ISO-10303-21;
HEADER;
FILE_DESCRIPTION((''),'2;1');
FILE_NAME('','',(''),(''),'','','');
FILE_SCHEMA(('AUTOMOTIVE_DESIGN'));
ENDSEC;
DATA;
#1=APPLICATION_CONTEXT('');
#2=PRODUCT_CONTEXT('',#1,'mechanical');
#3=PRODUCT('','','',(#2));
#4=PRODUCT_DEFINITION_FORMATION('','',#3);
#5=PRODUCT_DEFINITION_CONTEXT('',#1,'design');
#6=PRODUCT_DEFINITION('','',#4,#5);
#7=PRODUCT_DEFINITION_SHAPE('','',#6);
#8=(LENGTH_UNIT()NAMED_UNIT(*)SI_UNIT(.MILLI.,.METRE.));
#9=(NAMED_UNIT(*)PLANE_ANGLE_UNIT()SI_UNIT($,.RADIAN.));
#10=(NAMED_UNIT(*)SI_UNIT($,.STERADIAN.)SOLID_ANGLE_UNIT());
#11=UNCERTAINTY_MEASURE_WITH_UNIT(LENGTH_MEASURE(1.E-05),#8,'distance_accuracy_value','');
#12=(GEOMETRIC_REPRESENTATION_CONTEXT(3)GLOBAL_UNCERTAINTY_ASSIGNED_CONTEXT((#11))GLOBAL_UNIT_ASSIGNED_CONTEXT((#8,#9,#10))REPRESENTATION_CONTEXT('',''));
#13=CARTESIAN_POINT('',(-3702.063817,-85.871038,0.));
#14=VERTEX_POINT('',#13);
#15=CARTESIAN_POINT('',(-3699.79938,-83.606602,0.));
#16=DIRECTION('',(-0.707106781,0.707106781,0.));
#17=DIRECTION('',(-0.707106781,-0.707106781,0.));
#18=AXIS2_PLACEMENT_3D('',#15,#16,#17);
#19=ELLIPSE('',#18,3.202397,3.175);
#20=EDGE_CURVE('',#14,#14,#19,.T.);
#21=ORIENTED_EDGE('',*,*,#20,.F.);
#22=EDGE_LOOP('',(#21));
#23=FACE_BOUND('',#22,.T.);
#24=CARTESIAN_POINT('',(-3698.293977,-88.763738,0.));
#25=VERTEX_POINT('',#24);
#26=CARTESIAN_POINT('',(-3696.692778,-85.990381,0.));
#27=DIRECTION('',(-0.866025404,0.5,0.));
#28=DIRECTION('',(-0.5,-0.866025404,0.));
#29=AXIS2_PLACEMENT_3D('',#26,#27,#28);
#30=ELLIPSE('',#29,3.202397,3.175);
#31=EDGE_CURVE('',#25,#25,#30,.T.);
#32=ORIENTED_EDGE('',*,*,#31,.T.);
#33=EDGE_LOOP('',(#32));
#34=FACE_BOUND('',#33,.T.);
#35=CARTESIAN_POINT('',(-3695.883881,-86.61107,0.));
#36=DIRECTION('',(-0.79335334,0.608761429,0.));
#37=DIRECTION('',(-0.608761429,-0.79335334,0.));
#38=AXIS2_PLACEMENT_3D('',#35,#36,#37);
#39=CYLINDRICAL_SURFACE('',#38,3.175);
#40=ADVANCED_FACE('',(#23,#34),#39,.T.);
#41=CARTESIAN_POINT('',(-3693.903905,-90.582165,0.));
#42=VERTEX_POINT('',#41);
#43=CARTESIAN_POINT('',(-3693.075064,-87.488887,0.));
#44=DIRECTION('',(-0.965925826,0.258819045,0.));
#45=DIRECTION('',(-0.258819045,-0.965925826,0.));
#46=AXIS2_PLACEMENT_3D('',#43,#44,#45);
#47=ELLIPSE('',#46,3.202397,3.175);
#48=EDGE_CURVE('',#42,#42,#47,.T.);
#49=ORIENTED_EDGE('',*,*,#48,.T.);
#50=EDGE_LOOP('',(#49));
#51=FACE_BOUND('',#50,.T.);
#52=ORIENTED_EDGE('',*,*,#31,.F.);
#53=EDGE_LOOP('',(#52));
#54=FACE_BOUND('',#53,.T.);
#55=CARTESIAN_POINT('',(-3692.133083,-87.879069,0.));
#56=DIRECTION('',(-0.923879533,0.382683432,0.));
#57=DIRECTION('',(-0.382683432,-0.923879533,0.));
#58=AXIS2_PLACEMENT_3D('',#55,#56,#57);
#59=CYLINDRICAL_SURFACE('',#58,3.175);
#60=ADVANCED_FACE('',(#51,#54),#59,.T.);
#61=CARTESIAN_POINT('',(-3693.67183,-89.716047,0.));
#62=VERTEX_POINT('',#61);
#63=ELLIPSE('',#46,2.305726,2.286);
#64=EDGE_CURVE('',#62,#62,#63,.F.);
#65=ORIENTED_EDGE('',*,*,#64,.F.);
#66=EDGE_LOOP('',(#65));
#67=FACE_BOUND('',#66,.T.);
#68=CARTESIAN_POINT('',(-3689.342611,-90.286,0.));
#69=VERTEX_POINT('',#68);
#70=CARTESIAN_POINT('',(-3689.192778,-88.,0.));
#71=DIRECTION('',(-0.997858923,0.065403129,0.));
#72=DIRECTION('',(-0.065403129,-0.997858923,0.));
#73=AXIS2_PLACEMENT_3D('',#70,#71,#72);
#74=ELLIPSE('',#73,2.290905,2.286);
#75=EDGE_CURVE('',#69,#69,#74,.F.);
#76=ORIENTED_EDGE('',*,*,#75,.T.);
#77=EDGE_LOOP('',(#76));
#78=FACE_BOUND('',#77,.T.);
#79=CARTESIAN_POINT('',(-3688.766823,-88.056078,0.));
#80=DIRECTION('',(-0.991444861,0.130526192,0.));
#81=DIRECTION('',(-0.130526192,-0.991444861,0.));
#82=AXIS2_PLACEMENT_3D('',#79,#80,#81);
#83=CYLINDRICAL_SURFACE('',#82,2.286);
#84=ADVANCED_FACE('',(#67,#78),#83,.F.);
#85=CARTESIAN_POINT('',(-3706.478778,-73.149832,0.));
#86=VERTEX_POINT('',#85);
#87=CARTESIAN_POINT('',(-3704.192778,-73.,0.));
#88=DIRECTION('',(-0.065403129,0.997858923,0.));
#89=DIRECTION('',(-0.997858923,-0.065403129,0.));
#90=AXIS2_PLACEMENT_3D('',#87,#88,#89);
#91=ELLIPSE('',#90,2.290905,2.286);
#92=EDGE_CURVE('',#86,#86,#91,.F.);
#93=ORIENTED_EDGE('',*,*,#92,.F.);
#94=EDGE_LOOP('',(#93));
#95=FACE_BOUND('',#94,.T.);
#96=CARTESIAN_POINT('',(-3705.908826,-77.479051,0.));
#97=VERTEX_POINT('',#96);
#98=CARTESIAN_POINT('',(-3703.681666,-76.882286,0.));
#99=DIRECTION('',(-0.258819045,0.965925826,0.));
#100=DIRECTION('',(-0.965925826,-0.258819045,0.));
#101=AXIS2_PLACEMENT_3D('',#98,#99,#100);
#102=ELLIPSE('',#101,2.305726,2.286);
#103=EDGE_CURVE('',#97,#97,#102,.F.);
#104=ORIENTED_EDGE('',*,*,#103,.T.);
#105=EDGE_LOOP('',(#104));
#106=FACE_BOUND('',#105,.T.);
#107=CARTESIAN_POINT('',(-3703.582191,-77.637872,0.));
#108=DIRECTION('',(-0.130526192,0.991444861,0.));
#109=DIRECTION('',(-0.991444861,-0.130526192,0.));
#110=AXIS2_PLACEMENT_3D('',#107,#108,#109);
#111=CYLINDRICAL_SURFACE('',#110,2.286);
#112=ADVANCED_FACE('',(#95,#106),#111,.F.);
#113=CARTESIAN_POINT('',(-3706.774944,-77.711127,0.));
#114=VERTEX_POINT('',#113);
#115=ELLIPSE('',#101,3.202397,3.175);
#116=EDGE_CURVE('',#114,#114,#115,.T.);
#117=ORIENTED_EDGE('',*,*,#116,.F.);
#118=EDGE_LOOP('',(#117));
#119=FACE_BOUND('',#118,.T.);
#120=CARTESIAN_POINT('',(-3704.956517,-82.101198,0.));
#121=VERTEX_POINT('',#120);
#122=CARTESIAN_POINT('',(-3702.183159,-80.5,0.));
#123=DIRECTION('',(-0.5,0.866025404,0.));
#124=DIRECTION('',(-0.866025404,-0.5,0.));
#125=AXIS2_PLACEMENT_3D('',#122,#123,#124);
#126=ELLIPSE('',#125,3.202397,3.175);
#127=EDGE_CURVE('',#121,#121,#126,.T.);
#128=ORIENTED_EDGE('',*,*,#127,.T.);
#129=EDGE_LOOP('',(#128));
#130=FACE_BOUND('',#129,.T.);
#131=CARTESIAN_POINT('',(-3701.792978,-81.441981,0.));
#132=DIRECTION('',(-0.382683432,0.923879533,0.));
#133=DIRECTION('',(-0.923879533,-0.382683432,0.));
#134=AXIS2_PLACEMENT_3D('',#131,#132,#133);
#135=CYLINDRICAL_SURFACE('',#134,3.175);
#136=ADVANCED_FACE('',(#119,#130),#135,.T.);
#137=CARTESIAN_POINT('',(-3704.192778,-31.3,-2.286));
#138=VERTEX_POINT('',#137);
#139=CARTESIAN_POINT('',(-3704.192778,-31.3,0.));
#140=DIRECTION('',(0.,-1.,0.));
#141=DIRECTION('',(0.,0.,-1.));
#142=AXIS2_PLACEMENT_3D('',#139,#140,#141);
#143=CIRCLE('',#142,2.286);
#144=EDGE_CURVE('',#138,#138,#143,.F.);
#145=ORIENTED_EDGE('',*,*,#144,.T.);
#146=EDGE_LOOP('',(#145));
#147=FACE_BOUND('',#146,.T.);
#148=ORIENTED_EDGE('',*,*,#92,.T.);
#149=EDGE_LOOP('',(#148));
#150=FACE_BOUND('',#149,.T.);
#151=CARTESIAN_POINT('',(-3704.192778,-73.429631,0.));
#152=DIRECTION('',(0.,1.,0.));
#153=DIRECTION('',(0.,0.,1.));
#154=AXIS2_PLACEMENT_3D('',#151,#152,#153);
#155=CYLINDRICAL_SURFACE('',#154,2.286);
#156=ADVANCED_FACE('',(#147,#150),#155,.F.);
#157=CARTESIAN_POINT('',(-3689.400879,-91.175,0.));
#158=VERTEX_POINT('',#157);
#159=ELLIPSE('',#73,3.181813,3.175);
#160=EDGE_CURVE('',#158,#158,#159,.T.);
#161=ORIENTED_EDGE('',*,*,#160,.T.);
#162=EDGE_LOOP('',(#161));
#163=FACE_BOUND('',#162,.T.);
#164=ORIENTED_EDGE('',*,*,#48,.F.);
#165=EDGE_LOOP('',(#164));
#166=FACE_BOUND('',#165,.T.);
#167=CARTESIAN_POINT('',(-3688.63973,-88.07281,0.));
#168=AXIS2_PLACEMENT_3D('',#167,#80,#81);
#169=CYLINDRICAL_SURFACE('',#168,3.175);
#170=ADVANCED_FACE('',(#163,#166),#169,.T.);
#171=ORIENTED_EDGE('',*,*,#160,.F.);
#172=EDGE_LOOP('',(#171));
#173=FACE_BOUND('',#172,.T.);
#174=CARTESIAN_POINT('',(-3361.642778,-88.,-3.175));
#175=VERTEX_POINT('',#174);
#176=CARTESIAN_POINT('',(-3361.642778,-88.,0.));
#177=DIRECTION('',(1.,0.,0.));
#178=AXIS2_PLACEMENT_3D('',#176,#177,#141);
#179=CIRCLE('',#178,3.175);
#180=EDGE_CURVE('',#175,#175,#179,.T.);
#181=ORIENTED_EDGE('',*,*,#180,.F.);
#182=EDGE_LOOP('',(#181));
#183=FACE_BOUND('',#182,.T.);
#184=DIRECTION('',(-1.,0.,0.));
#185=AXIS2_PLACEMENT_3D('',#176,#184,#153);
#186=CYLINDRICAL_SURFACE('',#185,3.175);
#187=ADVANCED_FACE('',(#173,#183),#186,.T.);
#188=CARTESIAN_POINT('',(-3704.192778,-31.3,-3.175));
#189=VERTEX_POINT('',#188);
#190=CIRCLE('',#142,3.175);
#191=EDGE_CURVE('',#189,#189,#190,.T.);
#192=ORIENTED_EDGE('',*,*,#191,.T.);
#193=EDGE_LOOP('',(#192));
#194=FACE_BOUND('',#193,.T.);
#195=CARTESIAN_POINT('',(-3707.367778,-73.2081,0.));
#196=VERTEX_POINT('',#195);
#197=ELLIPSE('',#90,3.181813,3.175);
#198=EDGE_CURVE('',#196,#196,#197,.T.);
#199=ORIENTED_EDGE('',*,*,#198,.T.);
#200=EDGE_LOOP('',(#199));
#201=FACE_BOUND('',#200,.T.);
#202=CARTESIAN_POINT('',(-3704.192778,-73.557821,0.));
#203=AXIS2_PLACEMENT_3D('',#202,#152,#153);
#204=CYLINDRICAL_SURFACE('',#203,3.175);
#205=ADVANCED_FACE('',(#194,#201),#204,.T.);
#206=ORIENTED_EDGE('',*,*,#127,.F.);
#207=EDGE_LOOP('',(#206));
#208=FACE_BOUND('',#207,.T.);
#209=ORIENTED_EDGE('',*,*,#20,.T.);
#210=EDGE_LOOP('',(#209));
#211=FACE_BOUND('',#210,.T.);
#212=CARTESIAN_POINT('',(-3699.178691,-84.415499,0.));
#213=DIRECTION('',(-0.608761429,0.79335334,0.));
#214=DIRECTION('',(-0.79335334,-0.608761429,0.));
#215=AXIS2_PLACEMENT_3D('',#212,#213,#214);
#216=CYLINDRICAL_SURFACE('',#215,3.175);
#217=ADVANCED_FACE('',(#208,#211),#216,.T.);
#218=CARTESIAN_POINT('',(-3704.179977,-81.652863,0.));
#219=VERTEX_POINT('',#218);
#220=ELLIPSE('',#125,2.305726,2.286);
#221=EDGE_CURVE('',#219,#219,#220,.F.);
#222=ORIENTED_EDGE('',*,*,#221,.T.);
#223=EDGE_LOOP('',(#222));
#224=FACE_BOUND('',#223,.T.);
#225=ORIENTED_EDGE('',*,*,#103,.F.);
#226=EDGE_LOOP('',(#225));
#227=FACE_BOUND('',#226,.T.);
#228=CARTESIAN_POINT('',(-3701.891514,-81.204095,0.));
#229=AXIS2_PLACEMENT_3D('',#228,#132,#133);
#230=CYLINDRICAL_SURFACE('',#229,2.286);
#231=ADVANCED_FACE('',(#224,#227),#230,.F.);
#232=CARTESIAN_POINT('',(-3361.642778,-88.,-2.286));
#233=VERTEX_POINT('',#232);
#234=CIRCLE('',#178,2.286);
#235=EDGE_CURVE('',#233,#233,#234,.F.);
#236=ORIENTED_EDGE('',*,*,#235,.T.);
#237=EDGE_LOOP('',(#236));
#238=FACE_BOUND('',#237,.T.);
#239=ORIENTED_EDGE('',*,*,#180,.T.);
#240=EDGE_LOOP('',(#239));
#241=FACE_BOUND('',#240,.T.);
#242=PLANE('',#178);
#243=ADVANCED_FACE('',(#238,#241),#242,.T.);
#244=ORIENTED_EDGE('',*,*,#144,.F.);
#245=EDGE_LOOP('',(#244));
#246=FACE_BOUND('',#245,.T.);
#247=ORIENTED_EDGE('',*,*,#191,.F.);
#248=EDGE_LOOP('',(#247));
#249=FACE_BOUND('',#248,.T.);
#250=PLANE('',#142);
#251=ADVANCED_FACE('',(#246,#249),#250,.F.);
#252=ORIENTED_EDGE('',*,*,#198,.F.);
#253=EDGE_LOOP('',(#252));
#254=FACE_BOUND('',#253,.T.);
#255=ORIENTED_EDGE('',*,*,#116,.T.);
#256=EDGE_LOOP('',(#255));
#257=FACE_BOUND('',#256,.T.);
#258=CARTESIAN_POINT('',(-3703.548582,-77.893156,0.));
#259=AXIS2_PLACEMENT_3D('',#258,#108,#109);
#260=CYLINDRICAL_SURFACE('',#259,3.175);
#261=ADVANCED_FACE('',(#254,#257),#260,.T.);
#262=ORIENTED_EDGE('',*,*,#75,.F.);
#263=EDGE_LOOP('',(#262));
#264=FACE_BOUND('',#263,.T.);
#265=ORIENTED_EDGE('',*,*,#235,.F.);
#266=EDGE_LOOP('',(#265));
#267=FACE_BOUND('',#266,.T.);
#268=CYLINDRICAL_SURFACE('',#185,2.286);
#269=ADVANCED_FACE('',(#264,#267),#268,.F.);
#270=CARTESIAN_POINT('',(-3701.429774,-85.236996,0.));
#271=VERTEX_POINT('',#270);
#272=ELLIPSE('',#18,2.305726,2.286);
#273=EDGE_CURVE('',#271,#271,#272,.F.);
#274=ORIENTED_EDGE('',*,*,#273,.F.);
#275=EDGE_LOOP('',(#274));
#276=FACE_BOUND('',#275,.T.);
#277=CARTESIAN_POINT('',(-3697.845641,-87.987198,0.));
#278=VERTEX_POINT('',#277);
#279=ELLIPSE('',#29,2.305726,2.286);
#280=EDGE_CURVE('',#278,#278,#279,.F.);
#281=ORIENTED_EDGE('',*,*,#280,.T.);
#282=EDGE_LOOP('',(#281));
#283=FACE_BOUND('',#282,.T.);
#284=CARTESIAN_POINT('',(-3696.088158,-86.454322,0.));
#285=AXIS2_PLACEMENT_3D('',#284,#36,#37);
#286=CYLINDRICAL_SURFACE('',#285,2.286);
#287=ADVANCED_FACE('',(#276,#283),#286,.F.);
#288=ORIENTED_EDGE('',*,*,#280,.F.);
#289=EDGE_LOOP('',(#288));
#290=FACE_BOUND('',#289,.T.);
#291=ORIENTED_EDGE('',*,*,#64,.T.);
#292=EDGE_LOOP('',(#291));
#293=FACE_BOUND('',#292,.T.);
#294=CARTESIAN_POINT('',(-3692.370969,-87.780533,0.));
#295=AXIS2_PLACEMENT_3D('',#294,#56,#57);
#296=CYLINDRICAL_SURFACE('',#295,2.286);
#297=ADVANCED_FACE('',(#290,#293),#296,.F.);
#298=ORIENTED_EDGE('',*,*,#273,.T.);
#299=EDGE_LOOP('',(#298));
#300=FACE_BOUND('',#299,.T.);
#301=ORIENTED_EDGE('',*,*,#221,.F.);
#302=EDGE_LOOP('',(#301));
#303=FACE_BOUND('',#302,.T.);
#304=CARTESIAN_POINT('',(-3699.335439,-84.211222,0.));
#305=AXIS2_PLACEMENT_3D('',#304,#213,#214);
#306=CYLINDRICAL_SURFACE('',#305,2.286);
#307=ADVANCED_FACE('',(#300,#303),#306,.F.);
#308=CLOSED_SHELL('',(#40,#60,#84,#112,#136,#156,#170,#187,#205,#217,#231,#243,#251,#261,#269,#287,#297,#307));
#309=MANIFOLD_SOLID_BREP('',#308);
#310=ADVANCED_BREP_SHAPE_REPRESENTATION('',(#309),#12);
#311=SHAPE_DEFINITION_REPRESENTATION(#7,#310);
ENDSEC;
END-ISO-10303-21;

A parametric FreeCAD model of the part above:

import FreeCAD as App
import Part
import Sketcher
from FreeCAD import Vector
Q = App.Units.Quantity

doc = App.newDocument("Part")
body = doc.addObject("PartDesign::Body", "Body")

# Sketch on YZ plane
sketch1 = body.newObject("Sketcher::SketchObject", "Sketch")
sketch1.AttachmentSupport = (doc.getObject("YZ_Plane"), [""])
sketch1.MapMode = "FlatFace"
sketch1.AttachmentOffset = App.Placement(Vector(0, 0, -3361.642778), App.Rotation())
sketch1.addGeometry(Part.Circle(Vector(-88, 0, 0), Vector(0, 0, 1), 3.2), False)
sketch1.addGeometry(Part.Circle(Vector(-88, 0, 0), Vector(0, 0, 1), 2.3), False)
sketch1.addConstraint(Sketcher.Constraint("Coincident", 1, 3, 0, 3))
sketch1.addConstraint(Sketcher.Constraint("PointOnObject", 0, 3, -1))
sketch1.addConstraint(Sketcher.Constraint("Diameter", 0, Q("0.25 in")))
sketch1.addConstraint(Sketcher.Constraint("Diameter", 1, Q("0.18 in")))
sketch1.addConstraint(Sketcher.Constraint("DistanceX", 0, 3, -1, 1, 88.0))

# Sketch on XY plane
sketch2 = body.newObject("Sketcher::SketchObject", "Sketch001")
sketch2.AttachmentSupport = (doc.getObject("XY_Plane"), [""])
sketch2.MapMode = "FlatFace"
sketch2.addGeometry(Part.LineSegment(Vector(-3361.6, -88, 0), Vector(-3689.2, -88, 0)), False)
sketch2.addGeometry(Part.LineSegment(Vector(-3689.2, -88, 0), Vector(-3693.1, -87.5, 0)), False)
sketch2.addGeometry(Part.LineSegment(Vector(-3693.1, -87.5, 0), Vector(-3696.7, -86, 0)), False)
sketch2.addGeometry(Part.LineSegment(Vector(-3696.7, -86, 0), Vector(-3699.8, -83.6, 0)), False)
sketch2.addGeometry(Part.LineSegment(Vector(-3699.8, -83.6, 0), Vector(-3702.2, -80.5, 0)), False)
sketch2.addGeometry(Part.LineSegment(Vector(-3702.2, -80.5, 0), Vector(-3703.7, -76.9, 0)), False)
sketch2.addGeometry(Part.LineSegment(Vector(-3703.7, -76.9, 0), Vector(-3704.2, -73, 0)), False)
sketch2.addGeometry(Part.LineSegment(Vector(-3704.2, -73, 0), Vector(-3704.2, -31.3, 0)), False)
sketch2.addConstraint(Sketcher.Constraint("Coincident", 0, 2, 1, 1))
sketch2.addConstraint(Sketcher.Constraint("Coincident", 1, 2, 2, 1))
sketch2.addConstraint(Sketcher.Constraint("Coincident", 2, 2, 3, 1))
sketch2.addConstraint(Sketcher.Constraint("Coincident", 3, 2, 4, 1))
sketch2.addConstraint(Sketcher.Constraint("Coincident", 4, 2, 5, 1))
sketch2.addConstraint(Sketcher.Constraint("Coincident", 5, 2, 6, 1))
sketch2.addConstraint(Sketcher.Constraint("Coincident", 6, 2, 7, 1))
sketch2.addConstraint(Sketcher.Constraint("Horizontal", 0))
sketch2.addConstraint(Sketcher.Constraint("Vertical", 7))
sketch2.addConstraint(Sketcher.Constraint("Equal", 1, 2))
sketch2.addConstraint(Sketcher.Constraint("Equal", 2, 3))
sketch2.addConstraint(Sketcher.Constraint("Equal", 3, 4))
sketch2.addConstraint(Sketcher.Constraint("Equal", 4, 5))
sketch2.addConstraint(Sketcher.Constraint("Equal", 5, 6))
sketch2.addConstraint(Sketcher.Constraint("Angle", 1, Q("172.5 deg")))
sketch2.addConstraint(Sketcher.Constraint("Angle", 2, Q("157.5 deg")))
sketch2.addConstraint(Sketcher.Constraint("Angle", 3, Q("142.5 deg")))
sketch2.addConstraint(Sketcher.Constraint("Angle", 4, Q("127.5 deg")))
sketch2.addConstraint(Sketcher.Constraint("Angle", 5, Q("112.5 deg")))
sketch2.addConstraint(Sketcher.Constraint("Angle", 6, Q("97.5 deg")))
sketch2.addConstraint(Sketcher.Constraint("DistanceX", 0, 2, 0, 1, 327.55))
sketch2.addConstraint(Sketcher.Constraint("DistanceY", 7, 1, 7, 2, 41.7))
sketch2.addConstraint(Sketcher.Constraint("DistanceY", 0, 1, -1, 1, 88.0))
sketch2.addConstraint(Sketcher.Constraint("DistanceY", 3, 2, -1, 1, 83.606602))
sketch2.addConstraint(Sketcher.Constraint("DistanceX", 0, 1, -1, 1, 3361.642778))
doc.recompute()

additivepipe = body.newObject("PartDesign::AdditivePipe", "AdditivePipe")
additivepipe.Profile = sketch1
additivepipe.Spine = (sketch2, ["Edge1", "Edge2", "Edge3", "Edge4", "Edge5", "Edge6", "Edge7", "Edge8"])
additivepipe.Transition = "Right corner"

doc.recompute()
